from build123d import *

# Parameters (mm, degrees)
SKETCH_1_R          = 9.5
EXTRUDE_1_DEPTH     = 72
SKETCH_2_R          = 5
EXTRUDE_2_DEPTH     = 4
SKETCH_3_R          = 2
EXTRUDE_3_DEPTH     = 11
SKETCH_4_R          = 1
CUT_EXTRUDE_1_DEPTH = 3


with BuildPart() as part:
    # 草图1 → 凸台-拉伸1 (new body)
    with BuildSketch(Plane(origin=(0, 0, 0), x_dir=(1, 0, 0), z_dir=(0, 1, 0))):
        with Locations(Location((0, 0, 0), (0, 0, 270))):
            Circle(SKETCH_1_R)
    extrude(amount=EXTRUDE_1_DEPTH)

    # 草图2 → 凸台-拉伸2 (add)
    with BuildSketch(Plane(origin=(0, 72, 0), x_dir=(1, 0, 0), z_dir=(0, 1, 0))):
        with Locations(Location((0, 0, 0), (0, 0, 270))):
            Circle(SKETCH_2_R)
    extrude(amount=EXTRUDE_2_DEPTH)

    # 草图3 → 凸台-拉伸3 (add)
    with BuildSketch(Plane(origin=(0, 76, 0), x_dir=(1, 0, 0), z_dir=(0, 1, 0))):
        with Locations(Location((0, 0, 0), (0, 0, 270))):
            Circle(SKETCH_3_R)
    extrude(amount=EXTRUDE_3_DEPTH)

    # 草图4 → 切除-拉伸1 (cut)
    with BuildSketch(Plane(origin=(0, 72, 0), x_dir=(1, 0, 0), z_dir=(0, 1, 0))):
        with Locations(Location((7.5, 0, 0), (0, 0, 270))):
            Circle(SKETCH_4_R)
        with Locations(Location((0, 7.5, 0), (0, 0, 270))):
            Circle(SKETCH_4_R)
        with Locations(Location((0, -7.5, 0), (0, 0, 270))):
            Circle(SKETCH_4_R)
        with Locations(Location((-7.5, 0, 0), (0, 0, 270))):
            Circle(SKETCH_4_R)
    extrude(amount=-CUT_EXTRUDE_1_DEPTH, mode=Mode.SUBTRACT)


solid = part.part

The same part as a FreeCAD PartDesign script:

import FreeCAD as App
import Part
import Sketcher

V = App.Vector
Q = App.Units.Quantity

doc = App.newDocument("Part")
body = doc.addObject("PartDesign::Body", "Body")

sketch1 = doc.addObject("Sketcher::SketchObject", "Sketch")
body.addObject(sketch1)
sketch1.AttachmentSupport = (doc.XZ_Plane, [""])
sketch1.MapMode = "FlatFace"
sketch1.addGeometry(Part.Circle(V(0, 0, 0), V(0, 0, 1), 10), False)
sketch1.addConstraint(Sketcher.Constraint("Coincident", 0, 3, -1, 1))
sketch1.addConstraint(Sketcher.Constraint("Diameter", 0, Q("19 mm")))
pad1 = doc.addObject("PartDesign::Pad", "Pad")
body.addObject(pad1)
pad1.Profile = sketch1
pad1.Length = 72
pad1.Reversed = True

sketch2 = doc.addObject("Sketcher::SketchObject", "Sketch001")
body.addObject(sketch2)
sketch2.AttachmentSupport = (doc.XZ_Plane, [""])
sketch2.MapMode = "FlatFace"
sketch2.AttachmentOffset = App.Placement(V(0, 0, -72), App.Rotation())
sketch2.addGeometry(Part.Circle(V(0, 0, 0), V(0, 0, 1), 5), False)
sketch2.addConstraint(Sketcher.Constraint("Coincident", 0, 3, -1, 1))
sketch2.addConstraint(Sketcher.Constraint("Diameter", 0, Q("10 mm")))
pad2 = doc.addObject("PartDesign::Pad", "Pad001")
body.addObject(pad2)
pad2.Profile = sketch2
pad2.Length = 4
pad2.Reversed = True

sketch3 = doc.addObject("Sketcher::SketchObject", "Sketch002")
body.addObject(sketch3)
sketch3.AttachmentSupport = (doc.XZ_Plane, [""])
sketch3.MapMode = "FlatFace"
sketch3.AttachmentOffset = App.Placement(V(0, 0, -76), App.Rotation())
sketch3.addGeometry(Part.Circle(V(0, 0, 0), V(0, 0, 1), 2), False)
sketch3.addConstraint(Sketcher.Constraint("Coincident", 0, 3, -1, 1))
sketch3.addConstraint(Sketcher.Constraint("Diameter", 0, Q("4 mm")))
pad3 = doc.addObject("PartDesign::Pad", "Pad002")
body.addObject(pad3)
pad3.Profile = sketch3
pad3.Length = 11
pad3.Reversed = True

sketch4 = doc.addObject("Sketcher::SketchObject", "Sketch003")
body.addObject(sketch4)
sketch4.AttachmentSupport = (doc.XZ_Plane, [""])
sketch4.MapMode = "FlatFace"
sketch4.AttachmentOffset = App.Placement(V(0, 0, -72), App.Rotation())
sketch4.addGeometry(Part.Circle(V(7.5, 0, 0), V(0, 0, 1), 1), False)
sketch4.addGeometry(Part.Circle(V(0, -7.5, 0), V(0, 0, 1), 1), False)
sketch4.addGeometry(Part.Circle(V(0, 7.5, 0), V(0, 0, 1), 1), False)
sketch4.addGeometry(Part.Circle(V(-7.5, 0, 0), V(0, 0, 1), 1), False)
sketch4.addConstraint(Sketcher.Constraint("Equal", 0, 1))
sketch4.addConstraint(Sketcher.Constraint("Equal", 1, 2))
sketch4.addConstraint(Sketcher.Constraint("Equal", 2, 3))
sketch4.addConstraint(Sketcher.Constraint("Symmetric", 1, 3, 2, 3, -1, 1))
sketch4.addConstraint(Sketcher.Constraint("Symmetric", 0, 3, 3, 3, -1, 1))
sketch4.addConstraint(Sketcher.Constraint("PointOnObject", 0, 3, -1))
sketch4.addConstraint(Sketcher.Constraint("PointOnObject", 1, 3, -2))
sketch4.addConstraint(Sketcher.Constraint("Diameter", 0, Q("2 mm")))
sketch4.addConstraint(Sketcher.Constraint("DistanceY", 1, 3, 2, 3, Q("15 mm")))
sketch4.addConstraint(Sketcher.Constraint("DistanceX", 3, 3, 0, 3, Q("15 mm")))
pocket1 = doc.addObject("PartDesign::Pocket", "Pocket")
body.addObject(pocket1)
pocket1.Profile = sketch4
pocket1.Length = 3
pocket1.Reversed = True

doc.recompute()
